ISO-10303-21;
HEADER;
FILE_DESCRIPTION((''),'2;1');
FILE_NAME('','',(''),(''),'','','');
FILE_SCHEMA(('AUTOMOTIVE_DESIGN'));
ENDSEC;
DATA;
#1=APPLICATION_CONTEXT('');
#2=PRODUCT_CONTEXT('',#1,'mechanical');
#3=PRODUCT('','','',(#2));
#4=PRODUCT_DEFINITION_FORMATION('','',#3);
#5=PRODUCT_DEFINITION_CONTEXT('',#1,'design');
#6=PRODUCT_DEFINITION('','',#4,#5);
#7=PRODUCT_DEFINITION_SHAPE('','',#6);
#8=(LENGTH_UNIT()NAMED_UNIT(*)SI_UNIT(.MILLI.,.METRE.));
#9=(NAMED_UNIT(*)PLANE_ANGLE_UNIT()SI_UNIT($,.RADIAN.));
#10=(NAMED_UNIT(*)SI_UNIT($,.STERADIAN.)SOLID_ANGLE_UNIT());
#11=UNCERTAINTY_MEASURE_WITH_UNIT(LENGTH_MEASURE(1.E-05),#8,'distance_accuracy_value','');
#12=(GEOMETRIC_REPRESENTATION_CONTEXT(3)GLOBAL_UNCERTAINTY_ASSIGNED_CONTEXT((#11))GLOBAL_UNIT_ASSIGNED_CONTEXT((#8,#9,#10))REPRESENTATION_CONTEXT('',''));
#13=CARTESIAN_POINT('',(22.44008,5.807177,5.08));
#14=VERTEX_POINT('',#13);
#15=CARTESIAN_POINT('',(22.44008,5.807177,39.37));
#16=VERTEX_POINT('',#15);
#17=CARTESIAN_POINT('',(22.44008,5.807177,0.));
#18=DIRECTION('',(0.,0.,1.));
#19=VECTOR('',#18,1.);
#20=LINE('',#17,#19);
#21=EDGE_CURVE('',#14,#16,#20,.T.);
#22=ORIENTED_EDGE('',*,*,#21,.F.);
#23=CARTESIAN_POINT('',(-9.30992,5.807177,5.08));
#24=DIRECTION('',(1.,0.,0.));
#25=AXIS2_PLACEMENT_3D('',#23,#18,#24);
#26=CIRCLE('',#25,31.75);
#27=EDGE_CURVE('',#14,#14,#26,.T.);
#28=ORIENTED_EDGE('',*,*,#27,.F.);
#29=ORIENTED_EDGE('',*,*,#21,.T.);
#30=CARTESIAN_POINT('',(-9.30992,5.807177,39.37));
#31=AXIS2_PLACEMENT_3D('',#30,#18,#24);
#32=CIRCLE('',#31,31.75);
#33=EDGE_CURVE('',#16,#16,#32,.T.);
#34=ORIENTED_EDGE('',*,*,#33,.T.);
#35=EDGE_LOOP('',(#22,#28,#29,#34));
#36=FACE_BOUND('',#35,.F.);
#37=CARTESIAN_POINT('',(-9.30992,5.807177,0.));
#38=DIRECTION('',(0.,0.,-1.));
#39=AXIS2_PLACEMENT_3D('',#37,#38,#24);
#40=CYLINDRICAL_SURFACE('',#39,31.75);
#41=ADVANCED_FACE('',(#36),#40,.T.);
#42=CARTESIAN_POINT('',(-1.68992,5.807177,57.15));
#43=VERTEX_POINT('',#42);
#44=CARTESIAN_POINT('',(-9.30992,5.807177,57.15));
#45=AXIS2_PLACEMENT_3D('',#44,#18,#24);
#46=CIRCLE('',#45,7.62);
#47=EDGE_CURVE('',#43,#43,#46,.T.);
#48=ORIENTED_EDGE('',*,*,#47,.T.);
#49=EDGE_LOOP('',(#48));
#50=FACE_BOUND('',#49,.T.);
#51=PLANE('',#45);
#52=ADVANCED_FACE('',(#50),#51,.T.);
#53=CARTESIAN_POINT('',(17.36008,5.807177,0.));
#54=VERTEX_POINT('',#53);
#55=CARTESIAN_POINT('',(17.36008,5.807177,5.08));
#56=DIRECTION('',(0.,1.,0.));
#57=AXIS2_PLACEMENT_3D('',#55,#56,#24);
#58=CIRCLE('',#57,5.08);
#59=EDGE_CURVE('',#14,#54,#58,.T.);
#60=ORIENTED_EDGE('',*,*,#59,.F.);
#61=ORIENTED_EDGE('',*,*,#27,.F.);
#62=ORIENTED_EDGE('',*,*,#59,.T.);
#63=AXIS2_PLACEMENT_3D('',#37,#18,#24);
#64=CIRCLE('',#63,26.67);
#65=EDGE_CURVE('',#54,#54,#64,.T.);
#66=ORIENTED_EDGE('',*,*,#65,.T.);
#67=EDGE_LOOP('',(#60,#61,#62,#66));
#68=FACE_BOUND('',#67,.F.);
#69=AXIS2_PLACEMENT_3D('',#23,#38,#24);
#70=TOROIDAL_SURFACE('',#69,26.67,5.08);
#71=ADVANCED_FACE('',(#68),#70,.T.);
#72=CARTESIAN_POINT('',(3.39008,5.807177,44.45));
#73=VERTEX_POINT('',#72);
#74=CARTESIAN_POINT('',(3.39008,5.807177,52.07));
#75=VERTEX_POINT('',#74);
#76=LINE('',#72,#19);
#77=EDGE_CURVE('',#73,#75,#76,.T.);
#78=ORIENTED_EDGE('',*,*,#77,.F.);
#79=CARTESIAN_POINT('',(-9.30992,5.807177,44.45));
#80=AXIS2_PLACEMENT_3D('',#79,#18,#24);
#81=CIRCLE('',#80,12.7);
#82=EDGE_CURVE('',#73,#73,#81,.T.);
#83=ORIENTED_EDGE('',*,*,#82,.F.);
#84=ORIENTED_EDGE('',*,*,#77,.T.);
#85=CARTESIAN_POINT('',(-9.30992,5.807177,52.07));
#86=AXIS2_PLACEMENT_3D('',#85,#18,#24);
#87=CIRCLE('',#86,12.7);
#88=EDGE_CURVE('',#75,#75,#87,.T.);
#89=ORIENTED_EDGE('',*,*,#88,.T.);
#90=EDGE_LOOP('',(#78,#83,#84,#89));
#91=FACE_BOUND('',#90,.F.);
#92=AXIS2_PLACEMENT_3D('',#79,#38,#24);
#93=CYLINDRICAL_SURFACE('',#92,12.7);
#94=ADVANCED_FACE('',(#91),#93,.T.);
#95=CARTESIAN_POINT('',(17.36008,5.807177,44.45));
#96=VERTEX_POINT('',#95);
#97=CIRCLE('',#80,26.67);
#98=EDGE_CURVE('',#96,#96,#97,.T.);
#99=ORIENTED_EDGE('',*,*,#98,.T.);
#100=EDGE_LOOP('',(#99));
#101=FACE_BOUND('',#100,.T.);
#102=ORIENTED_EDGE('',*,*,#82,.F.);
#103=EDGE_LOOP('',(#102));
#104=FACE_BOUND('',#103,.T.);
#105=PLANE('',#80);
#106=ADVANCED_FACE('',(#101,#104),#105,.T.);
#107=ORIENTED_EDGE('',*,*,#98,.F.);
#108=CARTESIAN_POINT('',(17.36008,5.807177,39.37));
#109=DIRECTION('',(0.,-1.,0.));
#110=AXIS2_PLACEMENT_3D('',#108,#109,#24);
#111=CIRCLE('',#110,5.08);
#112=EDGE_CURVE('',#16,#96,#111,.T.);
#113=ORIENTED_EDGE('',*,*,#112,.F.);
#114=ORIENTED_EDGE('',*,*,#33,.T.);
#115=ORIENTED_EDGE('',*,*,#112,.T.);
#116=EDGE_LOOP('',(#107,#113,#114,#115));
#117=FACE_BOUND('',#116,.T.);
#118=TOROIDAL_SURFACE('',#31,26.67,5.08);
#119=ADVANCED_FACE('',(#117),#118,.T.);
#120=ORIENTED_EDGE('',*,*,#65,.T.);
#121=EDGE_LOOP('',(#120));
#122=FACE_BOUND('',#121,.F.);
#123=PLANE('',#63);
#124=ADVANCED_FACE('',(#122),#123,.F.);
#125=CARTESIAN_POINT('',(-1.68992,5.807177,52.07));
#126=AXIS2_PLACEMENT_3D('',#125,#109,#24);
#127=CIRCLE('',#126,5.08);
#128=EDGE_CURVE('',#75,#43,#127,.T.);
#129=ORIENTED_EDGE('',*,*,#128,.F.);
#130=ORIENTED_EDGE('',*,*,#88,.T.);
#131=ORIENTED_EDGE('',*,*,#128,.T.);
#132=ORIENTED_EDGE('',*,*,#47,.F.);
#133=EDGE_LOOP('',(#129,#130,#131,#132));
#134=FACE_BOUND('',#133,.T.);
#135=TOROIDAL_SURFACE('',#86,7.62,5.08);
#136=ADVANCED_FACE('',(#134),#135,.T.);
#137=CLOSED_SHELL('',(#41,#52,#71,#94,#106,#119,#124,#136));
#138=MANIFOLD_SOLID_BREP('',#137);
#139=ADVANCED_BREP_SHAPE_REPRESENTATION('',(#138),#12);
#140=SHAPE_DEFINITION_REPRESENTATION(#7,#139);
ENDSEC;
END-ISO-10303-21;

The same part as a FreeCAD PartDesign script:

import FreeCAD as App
import Part
import Sketcher
from FreeCAD import Vector
Q = App.Units.Quantity


def edges_at(feature, points):
    """Names of the edges that pass closest to the given points."""
    edges = feature.Shape.Edges
    near = lambda p: min(range(len(edges)), key=lambda i: edges[i].distToShape(Part.Vertex(*p))[0])
    return sorted({f"Edge{near(p) + 1}" for p in points})

doc = App.newDocument("Part")
params = doc.addObject("Spreadsheet::Sheet", "Params")
for row, (alias, value) in enumerate([
    ("sketch1_diameter", "2.5 in"),
    ("pad1_length", "1.75 in"),
    ("sketch2_diameter", "1 in"),
    ("pad2_length", "0.5 in"),
    ("fillet_radius", "0.2 in"),
], start=1):
    params.set(f"A{row}", alias)
    params.set(f"B{row}", "=" + value)
    params.setAlias(f"B{row}", alias)

body = doc.addObject("PartDesign::Body", "Body")

# Sketch on XY plane
sketch1 = doc.addObject("Sketcher::SketchObject", "Sketch")
body.addObject(sketch1)
sketch1.AttachmentSupport = (doc.XY_Plane, [""])
sketch1.MapMode = "FlatFace"
sketch1.addGeometry(Part.Circle(Vector(-9, 6, 0), Vector(0, 0, 1), 32), False)
sketch1.addConstraint([
    Sketcher.Constraint("Diameter", 0, Q("2.5 in")),
    Sketcher.Constraint("DistanceX", 0, 3, -1, 1, 9.30992),
    Sketcher.Constraint("DistanceY", -1, 1, 0, 3, 5.807177),
])
sketch1.setExpression("Constraints[0]", "Params.sketch1_diameter")
pad1 = doc.addObject("PartDesign::Pad", "Pad")
body.addObject(pad1)
pad1.Profile = sketch1
pad1.setExpression("Length", "Params.pad1_length")

# Sketch on XY plane
sketch2 = doc.addObject("Sketcher::SketchObject", "Sketch001")
body.addObject(sketch2)
sketch2.AttachmentSupport = (doc.XY_Plane, [""])
sketch2.MapMode = "FlatFace"
sketch2.AttachmentOffset = App.Placement(Vector(0, 0, 1.75 * 25.4), App.Rotation())
sketch2.addGeometry(Part.Circle(Vector(-9, 6, 0), Vector(0, 0, 1), 13), False)
sketch2.addConstraint([
    Sketcher.Constraint("Diameter", 0, Q("1 in")),
    Sketcher.Constraint("DistanceX", 0, 3, -1, 1, 9.30992),
    Sketcher.Constraint("DistanceY", -1, 1, 0, 3, 5.807177),
])
sketch2.setExpression("Constraints[0]", "Params.sketch2_diameter")
pad2 = doc.addObject("PartDesign::Pad", "Pad001")
body.addObject(pad2)
pad2.Profile = sketch2
pad2.setExpression("Length", "Params.pad2_length")
doc.recompute()

fillet = doc.addObject("PartDesign::Fillet", "Fillet")
body.addObject(fillet)
fillet.Base = (pad2, edges_at(pad2, [(-41.06, 5.807, 44.45), (-41.06, 5.807, 0), (-22.01, 5.807, 57.15)]))
fillet.setExpression("Radius", "Params.fillet_radius")

doc.recompute()
